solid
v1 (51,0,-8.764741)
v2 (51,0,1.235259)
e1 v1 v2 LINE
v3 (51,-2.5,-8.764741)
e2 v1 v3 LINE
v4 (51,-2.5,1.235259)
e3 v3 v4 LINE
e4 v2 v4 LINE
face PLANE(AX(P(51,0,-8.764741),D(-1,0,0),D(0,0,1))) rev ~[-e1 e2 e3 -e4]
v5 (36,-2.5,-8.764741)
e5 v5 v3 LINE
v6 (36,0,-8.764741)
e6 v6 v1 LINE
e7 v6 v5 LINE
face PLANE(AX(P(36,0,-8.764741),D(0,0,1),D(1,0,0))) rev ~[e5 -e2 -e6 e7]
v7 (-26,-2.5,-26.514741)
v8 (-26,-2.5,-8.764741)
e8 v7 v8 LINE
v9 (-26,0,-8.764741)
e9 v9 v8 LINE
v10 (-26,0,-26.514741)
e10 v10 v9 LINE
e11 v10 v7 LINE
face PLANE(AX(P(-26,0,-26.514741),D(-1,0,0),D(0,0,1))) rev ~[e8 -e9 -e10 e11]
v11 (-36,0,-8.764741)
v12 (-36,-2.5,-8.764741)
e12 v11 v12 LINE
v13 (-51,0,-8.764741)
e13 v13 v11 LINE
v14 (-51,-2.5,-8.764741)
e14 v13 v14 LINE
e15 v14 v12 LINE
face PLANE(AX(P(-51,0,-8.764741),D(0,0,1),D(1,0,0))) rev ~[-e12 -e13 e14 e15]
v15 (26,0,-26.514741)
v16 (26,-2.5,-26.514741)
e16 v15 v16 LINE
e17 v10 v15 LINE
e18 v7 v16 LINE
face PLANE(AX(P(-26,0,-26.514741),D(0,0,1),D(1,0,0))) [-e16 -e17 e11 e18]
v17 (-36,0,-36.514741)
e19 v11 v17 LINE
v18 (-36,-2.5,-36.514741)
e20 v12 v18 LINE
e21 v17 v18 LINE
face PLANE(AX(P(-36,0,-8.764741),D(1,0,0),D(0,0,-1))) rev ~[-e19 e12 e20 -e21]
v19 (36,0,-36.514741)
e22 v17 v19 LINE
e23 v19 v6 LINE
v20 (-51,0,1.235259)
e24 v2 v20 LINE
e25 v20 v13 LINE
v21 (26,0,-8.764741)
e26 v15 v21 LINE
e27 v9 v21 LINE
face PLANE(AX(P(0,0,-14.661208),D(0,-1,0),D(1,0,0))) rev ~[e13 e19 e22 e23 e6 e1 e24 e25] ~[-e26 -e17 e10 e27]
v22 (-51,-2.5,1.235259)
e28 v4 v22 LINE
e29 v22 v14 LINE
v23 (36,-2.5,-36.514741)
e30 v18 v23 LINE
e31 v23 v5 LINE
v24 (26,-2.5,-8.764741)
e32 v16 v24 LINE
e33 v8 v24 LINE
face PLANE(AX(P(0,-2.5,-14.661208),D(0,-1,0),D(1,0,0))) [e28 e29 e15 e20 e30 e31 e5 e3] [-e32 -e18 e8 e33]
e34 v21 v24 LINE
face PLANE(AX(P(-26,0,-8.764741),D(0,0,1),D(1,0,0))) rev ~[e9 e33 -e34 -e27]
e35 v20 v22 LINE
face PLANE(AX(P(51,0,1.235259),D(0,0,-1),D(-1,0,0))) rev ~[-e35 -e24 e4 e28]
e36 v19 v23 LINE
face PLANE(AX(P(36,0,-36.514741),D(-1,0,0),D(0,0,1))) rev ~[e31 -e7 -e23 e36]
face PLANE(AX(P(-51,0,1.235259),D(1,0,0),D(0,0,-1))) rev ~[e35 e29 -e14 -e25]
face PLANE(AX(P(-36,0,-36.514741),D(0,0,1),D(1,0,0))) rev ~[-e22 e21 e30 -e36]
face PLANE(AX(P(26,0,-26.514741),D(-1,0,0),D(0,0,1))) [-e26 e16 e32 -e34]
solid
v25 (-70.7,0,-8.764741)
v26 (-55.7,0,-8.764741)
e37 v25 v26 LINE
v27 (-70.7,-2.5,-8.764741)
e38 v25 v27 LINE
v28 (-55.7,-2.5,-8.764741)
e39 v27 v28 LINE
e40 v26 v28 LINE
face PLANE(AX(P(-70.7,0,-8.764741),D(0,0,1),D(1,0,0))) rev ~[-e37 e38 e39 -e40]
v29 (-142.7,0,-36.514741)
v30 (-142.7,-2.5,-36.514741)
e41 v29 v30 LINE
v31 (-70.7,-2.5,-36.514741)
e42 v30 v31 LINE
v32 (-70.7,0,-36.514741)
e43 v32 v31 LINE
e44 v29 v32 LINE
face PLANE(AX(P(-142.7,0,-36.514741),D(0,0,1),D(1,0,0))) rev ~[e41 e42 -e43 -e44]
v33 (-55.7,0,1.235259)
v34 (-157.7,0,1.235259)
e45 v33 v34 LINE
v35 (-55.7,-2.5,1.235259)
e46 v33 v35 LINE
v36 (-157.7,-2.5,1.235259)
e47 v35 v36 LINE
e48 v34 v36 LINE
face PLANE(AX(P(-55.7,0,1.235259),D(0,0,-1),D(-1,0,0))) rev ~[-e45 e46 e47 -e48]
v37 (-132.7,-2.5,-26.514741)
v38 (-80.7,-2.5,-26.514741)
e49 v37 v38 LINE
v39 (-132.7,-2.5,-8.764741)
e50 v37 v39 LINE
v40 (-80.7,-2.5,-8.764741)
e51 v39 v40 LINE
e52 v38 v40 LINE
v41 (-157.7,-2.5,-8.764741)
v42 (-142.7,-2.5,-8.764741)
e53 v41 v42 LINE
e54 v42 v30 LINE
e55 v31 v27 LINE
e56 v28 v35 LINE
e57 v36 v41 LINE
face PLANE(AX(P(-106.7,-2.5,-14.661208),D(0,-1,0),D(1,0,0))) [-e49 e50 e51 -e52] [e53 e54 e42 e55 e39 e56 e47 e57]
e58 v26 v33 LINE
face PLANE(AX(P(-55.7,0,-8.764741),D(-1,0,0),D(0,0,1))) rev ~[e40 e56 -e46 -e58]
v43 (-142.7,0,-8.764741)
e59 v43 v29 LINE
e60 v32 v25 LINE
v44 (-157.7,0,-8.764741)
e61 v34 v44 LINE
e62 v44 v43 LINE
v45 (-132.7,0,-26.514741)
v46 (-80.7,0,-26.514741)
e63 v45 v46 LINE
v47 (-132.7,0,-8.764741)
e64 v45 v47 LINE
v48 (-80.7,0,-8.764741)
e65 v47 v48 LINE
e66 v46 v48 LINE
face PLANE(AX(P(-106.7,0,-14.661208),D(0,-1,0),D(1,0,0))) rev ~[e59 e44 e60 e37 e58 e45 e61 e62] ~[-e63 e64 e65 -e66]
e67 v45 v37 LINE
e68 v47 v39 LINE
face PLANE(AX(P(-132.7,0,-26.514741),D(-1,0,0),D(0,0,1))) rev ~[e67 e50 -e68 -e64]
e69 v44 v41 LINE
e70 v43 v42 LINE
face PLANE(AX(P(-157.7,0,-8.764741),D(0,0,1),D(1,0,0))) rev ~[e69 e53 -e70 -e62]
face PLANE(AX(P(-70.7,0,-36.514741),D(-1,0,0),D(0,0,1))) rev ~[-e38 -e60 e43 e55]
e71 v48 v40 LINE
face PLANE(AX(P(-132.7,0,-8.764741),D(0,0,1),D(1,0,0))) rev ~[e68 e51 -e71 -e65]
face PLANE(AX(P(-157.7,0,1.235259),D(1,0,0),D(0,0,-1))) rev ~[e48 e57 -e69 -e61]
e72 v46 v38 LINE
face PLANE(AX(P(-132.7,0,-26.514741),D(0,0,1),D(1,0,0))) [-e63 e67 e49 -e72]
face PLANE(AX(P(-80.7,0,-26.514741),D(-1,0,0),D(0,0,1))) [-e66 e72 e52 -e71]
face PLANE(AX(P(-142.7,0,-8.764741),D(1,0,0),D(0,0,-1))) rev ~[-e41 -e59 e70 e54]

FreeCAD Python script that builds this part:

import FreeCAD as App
import Part
import Sketcher
Q = App.Units.Quantity

doc = App.newDocument("Part")
body = doc.addObject("PartDesign::Body", "Body")
body.AllowCompound = True

sketch1 = body.newObject("Sketcher::SketchObject", "Sketch")
sketch1.AttachmentSupport = (doc.getObject("XZ_Plane"), [""])
sketch1.MapMode = "FlatFace"
sketch1.addGeometry([
    Part.LineSegment(App.Vector(-36, -9, 0), App.Vector(-36, -37, 0)),
    Part.LineSegment(App.Vector(-36, -37, 0), App.Vector(36, -37, 0)),
    Part.LineSegment(App.Vector(36, -37, 0), App.Vector(36, -9, 0)),
    Part.LineSegment(App.Vector(36, -9, 0), App.Vector(51, -9, 0)),
    Part.LineSegment(App.Vector(51, -9, 0), App.Vector(51, 1, 0)),
    Part.LineSegment(App.Vector(51, 1, 0), App.Vector(-51, 1, 0)),
    Part.LineSegment(App.Vector(-51, 1, 0), App.Vector(-51, -9, 0)),
    Part.LineSegment(App.Vector(-51, -9, 0), App.Vector(-36, -9, 0)),
    Part.LineSegment(App.Vector(26, -27, 0), App.Vector(-26, -27, 0)),
    Part.LineSegment(App.Vector(-26, -27, 0), App.Vector(-26, -9, 0)),
    Part.LineSegment(App.Vector(-26, -9, 0), App.Vector(26, -9, 0)),
    Part.LineSegment(App.Vector(26, -9, 0), App.Vector(26, -27, 0)),
    Part.LineSegment(App.Vector(-158, -9, 0), App.Vector(-143, -9, 0)),
    Part.LineSegment(App.Vector(-143, -9, 0), App.Vector(-143, -37, 0)),
    Part.LineSegment(App.Vector(-143, -37, 0), App.Vector(-71, -37, 0)),
    Part.LineSegment(App.Vector(-71, -37, 0), App.Vector(-71, -9, 0)),
    Part.LineSegment(App.Vector(-71, -9, 0), App.Vector(-56, -9, 0)),
    Part.LineSegment(App.Vector(-56, -9, 0), App.Vector(-56, 1, 0)),
    Part.LineSegment(App.Vector(-56, 1, 0), App.Vector(-158, 1, 0)),
    Part.LineSegment(App.Vector(-158, 1, 0), App.Vector(-158, -9, 0)),
    Part.LineSegment(App.Vector(-81, -27, 0), App.Vector(-133, -27, 0)),
    Part.LineSegment(App.Vector(-133, -27, 0), App.Vector(-133, -9, 0)),
    Part.LineSegment(App.Vector(-133, -9, 0), App.Vector(-81, -9, 0)),
    Part.LineSegment(App.Vector(-81, -9, 0), App.Vector(-81, -27, 0)),
], False)
sketch1.addConstraint([
    Sketcher.Constraint("Coincident", 0, 2, 1, 1),
    Sketcher.Constraint("Coincident", 1, 2, 2, 1),
    Sketcher.Constraint("Coincident", 2, 2, 3, 1),
    Sketcher.Constraint("Coincident", 3, 2, 4, 1),
    Sketcher.Constraint("Coincident", 4, 2, 5, 1),
    Sketcher.Constraint("Coincident", 5, 2, 6, 1),
    Sketcher.Constraint("Coincident", 6, 2, 7, 1),
    Sketcher.Constraint("Coincident", 7, 2, 0, 1),
    Sketcher.Constraint("Coincident", 8, 2, 9, 1),
    Sketcher.Constraint("Coincident", 9, 2, 10, 1),
    Sketcher.Constraint("Coincident", 10, 2, 11, 1),
    Sketcher.Constraint("Coincident", 11, 2, 8, 1),
    Sketcher.Constraint("Coincident", 12, 2, 13, 1),
    Sketcher.Constraint("Coincident", 13, 2, 14, 1),
    Sketcher.Constraint("Coincident", 14, 2, 15, 1),
    Sketcher.Constraint("Coincident", 15, 2, 16, 1),
    Sketcher.Constraint("Coincident", 16, 2, 17, 1),
    Sketcher.Constraint("Coincident", 17, 2, 18, 1),
    Sketcher.Constraint("Coincident", 18, 2, 19, 1),
    Sketcher.Constraint("Coincident", 19, 2, 12, 1),
    Sketcher.Constraint("Coincident", 20, 2, 21, 1),
    Sketcher.Constraint("Coincident", 21, 2, 22, 1),
    Sketcher.Constraint("Coincident", 22, 2, 23, 1),
    Sketcher.Constraint("Coincident", 23, 2, 20, 1),
    Sketcher.Constraint("Vertical", 0),
    Sketcher.Constraint("Horizontal", 1),
    Sketcher.Constraint("Vertical", 2),
    Sketcher.Constraint("Horizontal", 3),
    Sketcher.Constraint("Vertical", 4),
    Sketcher.Constraint("Horizontal", 5),
    Sketcher.Constraint("Vertical", 6),
    Sketcher.Constraint("Horizontal", 7),
    Sketcher.Constraint("Horizontal", 8),
    Sketcher.Constraint("Vertical", 9),
    Sketcher.Constraint("Horizontal", 10),
    Sketcher.Constraint("Vertical", 11),
    Sketcher.Constraint("Horizontal", 12),
    Sketcher.Constraint("Vertical", 13),
    Sketcher.Constraint("Horizontal", 14),
    Sketcher.Constraint("Vertical", 15),
    Sketcher.Constraint("Horizontal", 16),
    Sketcher.Constraint("Vertical", 17),
    Sketcher.Constraint("Horizontal", 18),
    Sketcher.Constraint("Vertical", 19),
    Sketcher.Constraint("Horizontal", 20),
    Sketcher.Constraint("Vertical", 21),
    Sketcher.Constraint("Horizontal", 22),
    Sketcher.Constraint("Vertical", 23),
    Sketcher.Constraint("Symmetric", 3, 2, 6, 2, -2),
    Sketcher.Constraint("Horizontal", 7, 2, 9, 2),
    Sketcher.Constraint("Horizontal", 10, 2, 12, 2),
    Sketcher.Constraint("Horizontal", 1, 2, 13, 2),
    Sketcher.Constraint("Horizontal", 12, 2, 15, 2),
    Sketcher.Constraint("Horizontal", 5, 2, 17, 2),
    Sketcher.Constraint("Horizontal", 11, 2, 20, 2),
    Sketcher.Constraint("Horizontal", 19, 2, 21, 2),
    Sketcher.Constraint("Equal", 3, 7),
    Sketcher.Constraint("Equal", 7, 12),
    Sketcher.Constraint("Equal", 1, 14),
    Sketcher.Constraint("Equal", 12, 16),
    Sketcher.Constraint("Equal", 10, 20),
    Sketcher.Constraint("DistanceX", 1, 1, 1, 2, Q("72 mm")),
    Sketcher.Constraint("DistanceX", 3, 1, 3, 2, Q("15 mm")),
    Sketcher.Constraint("DistanceX", 8, 2, 8, 1, Q("52 mm")),
    Sketcher.Constraint("DistanceY", 4, 1, 4, 2, Q("10 mm")),
    Sketcher.Constraint("DistanceX", 8, 2, -1, 1, Q("26 mm")),
    Sketcher.Constraint("DistanceY", 0, 2, 8, 2, Q("10 mm")),
    Sketcher.Constraint("DistanceX", 13, 2, 20, 2, Q("10 mm")),
    Sketcher.Constraint("DistanceY", 0, 2, 0, 1, Q("27.75 mm")),
    Sketcher.Constraint("DistanceX", 12, 2, -1, 1, Q("142.7 mm")),
    Sketcher.Constraint("DistanceY", 0, 2, -1, 1, Q("36.514741 mm")),
])
pad1 = body.newObject("PartDesign::Pad", "Pad")
pad1.Profile = sketch1
pad1.Length = 2.5

doc.recompute()
